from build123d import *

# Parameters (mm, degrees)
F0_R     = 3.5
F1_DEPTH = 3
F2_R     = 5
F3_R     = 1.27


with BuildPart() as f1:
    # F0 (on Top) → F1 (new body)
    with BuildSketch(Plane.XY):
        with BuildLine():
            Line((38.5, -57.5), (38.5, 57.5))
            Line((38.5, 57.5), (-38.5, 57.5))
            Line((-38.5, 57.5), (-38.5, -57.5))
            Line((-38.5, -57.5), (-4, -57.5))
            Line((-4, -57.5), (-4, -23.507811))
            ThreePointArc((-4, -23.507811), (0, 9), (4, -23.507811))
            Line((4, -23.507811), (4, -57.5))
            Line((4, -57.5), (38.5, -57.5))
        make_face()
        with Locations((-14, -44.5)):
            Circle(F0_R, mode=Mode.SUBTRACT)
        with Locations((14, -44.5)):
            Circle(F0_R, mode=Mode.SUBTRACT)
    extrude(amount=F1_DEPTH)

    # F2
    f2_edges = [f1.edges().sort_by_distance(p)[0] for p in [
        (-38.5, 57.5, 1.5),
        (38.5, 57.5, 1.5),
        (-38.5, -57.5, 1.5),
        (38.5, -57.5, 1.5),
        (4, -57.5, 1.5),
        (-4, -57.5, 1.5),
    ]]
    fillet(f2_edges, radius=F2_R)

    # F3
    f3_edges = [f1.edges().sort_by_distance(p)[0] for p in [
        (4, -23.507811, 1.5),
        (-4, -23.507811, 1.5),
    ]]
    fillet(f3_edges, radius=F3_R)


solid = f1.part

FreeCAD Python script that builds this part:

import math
import FreeCAD as App
import Part
import Sketcher
from FreeCAD import Vector
Q = App.Units.Quantity


def edges_at(feature, points):
    """Names of the edges that pass closest to the given points."""
    edges = feature.Shape.Edges
    near = lambda p: min(range(len(edges)), key=lambda i: edges[i].distToShape(Part.Vertex(*p))[0])
    return sorted({f"Edge{near(p) + 1}" for p in points})

doc = App.newDocument("Part")
body = doc.addObject("PartDesign::Body", "Body")

sketch1 = doc.addObject("Sketcher::SketchObject", "Sketch")
body.addObject(sketch1)
sketch1.AttachmentSupport = (doc.XY_Plane, [""])
sketch1.MapMode = "FlatFace"
sketch1.addGeometry([
    Part.LineSegment(Vector(38.5, -57.5, 0), Vector(38.5, 57.5, 0)),
    Part.LineSegment(Vector(38.5, 57.5, 0), Vector(-38.5, 57.5, 0)),
    Part.LineSegment(Vector(-38.5, 57.5, 0), Vector(-38.5, -57.5, 0)),
    Part.LineSegment(Vector(-38.5, -57.5, 0), Vector(-4, -57.5, 0)),
    Part.LineSegment(Vector(-4, -57.5, 0), Vector(-4, -23.5, 0)),
    Part.ArcOfCircle(Part.Circle(Vector(0, -7.5, 0), Vector(0, 0, 1), 16.5), math.radians(-76), math.radians(256)),
    Part.LineSegment(Vector(4, -23.5, 0), Vector(4, -57.5, 0)),
    Part.LineSegment(Vector(4, -57.5, 0), Vector(38.5, -57.5, 0)),
    Part.Circle(Vector(-14, -44.5, 0), Vector(0, 0, 1), 3.5),
    Part.Circle(Vector(14, -44.5, 0), Vector(0, 0, 1), 3.5),
], False)
sketch1.addConstraint([
    Sketcher.Constraint("Coincident", 0, 2, 1, 1),
    Sketcher.Constraint("Coincident", 1, 2, 2, 1),
    Sketcher.Constraint("Coincident", 2, 2, 3, 1),
    Sketcher.Constraint("Coincident", 3, 2, 4, 1),
    Sketcher.Constraint("Coincident", 4, 2, 5, 2),
    Sketcher.Constraint("Coincident", 5, 1, 6, 1),
    Sketcher.Constraint("Coincident", 6, 2, 7, 1),
    Sketcher.Constraint("Coincident", 7, 2, 0, 1),
    Sketcher.Constraint("Vertical", 0),
    Sketcher.Constraint("Horizontal", 1),
    Sketcher.Constraint("Vertical", 2),
    Sketcher.Constraint("Horizontal", 3),
    Sketcher.Constraint("Vertical", 4),
    Sketcher.Constraint("Vertical", 6),
    Sketcher.Constraint("Horizontal", 7),
    Sketcher.Constraint("Equal", 8, 9),
    Sketcher.Constraint("Symmetric", 0, 2, 2, 2, -1, 1),
    Sketcher.Constraint("Symmetric", 8, 3, 9, 3, -2),
    Sketcher.Constraint("Symmetric", 4, 2, 5, 1, -2),
    Sketcher.Constraint("Horizontal", 3, 2, 6, 2),
    Sketcher.Constraint("Diameter", 8, Q("7 mm")),
    Sketcher.Constraint("Radius", 5, Q("16.5 mm")),
    Sketcher.Constraint("DistanceX", 1, 2, 1, 1, Q("77 mm")),
    Sketcher.Constraint("DistanceY", 0, 1, 0, 2, Q("115 mm")),
    Sketcher.Constraint("DistanceX", 3, 1, 3, 2, Q("34.5 mm")),
    Sketcher.Constraint("DistanceX", 8, 3, -1, 1, Q("14 mm")),
    Sketcher.Constraint("DistanceY", 8, 3, 5, 3, Q("37 mm")),
    Sketcher.Constraint("DistanceY", 5, 3, 0, 2, Q("65 mm")),
])
pad1 = doc.addObject("PartDesign::Pad", "Pad")
body.addObject(pad1)
pad1.Profile = sketch1
pad1.Length = 3
doc.recompute()

fillet = doc.addObject("PartDesign::Fillet", "Fillet")
body.addObject(fillet)
fillet.Base = (pad1, edges_at(pad1, [
    (-38.5, 57.5, 1.5),
    (38.5, 57.5, 1.5),
    (-38.5, -57.5, 1.5),
    (38.5, -57.5, 1.5),
    (4, -57.5, 1.5),
    (-4, -57.5, 1.5),
]))
fillet.Radius = 5
doc.recompute()

fillet2 = doc.addObject("PartDesign::Fillet", "Fillet001")
body.addObject(fillet2)
fillet2.Base = (fillet, edges_at(fillet, [(4, -23.508, 1.5), (-4, -23.508, 1.5)]))
fillet2.Radius = 1.27

doc.recompute()
